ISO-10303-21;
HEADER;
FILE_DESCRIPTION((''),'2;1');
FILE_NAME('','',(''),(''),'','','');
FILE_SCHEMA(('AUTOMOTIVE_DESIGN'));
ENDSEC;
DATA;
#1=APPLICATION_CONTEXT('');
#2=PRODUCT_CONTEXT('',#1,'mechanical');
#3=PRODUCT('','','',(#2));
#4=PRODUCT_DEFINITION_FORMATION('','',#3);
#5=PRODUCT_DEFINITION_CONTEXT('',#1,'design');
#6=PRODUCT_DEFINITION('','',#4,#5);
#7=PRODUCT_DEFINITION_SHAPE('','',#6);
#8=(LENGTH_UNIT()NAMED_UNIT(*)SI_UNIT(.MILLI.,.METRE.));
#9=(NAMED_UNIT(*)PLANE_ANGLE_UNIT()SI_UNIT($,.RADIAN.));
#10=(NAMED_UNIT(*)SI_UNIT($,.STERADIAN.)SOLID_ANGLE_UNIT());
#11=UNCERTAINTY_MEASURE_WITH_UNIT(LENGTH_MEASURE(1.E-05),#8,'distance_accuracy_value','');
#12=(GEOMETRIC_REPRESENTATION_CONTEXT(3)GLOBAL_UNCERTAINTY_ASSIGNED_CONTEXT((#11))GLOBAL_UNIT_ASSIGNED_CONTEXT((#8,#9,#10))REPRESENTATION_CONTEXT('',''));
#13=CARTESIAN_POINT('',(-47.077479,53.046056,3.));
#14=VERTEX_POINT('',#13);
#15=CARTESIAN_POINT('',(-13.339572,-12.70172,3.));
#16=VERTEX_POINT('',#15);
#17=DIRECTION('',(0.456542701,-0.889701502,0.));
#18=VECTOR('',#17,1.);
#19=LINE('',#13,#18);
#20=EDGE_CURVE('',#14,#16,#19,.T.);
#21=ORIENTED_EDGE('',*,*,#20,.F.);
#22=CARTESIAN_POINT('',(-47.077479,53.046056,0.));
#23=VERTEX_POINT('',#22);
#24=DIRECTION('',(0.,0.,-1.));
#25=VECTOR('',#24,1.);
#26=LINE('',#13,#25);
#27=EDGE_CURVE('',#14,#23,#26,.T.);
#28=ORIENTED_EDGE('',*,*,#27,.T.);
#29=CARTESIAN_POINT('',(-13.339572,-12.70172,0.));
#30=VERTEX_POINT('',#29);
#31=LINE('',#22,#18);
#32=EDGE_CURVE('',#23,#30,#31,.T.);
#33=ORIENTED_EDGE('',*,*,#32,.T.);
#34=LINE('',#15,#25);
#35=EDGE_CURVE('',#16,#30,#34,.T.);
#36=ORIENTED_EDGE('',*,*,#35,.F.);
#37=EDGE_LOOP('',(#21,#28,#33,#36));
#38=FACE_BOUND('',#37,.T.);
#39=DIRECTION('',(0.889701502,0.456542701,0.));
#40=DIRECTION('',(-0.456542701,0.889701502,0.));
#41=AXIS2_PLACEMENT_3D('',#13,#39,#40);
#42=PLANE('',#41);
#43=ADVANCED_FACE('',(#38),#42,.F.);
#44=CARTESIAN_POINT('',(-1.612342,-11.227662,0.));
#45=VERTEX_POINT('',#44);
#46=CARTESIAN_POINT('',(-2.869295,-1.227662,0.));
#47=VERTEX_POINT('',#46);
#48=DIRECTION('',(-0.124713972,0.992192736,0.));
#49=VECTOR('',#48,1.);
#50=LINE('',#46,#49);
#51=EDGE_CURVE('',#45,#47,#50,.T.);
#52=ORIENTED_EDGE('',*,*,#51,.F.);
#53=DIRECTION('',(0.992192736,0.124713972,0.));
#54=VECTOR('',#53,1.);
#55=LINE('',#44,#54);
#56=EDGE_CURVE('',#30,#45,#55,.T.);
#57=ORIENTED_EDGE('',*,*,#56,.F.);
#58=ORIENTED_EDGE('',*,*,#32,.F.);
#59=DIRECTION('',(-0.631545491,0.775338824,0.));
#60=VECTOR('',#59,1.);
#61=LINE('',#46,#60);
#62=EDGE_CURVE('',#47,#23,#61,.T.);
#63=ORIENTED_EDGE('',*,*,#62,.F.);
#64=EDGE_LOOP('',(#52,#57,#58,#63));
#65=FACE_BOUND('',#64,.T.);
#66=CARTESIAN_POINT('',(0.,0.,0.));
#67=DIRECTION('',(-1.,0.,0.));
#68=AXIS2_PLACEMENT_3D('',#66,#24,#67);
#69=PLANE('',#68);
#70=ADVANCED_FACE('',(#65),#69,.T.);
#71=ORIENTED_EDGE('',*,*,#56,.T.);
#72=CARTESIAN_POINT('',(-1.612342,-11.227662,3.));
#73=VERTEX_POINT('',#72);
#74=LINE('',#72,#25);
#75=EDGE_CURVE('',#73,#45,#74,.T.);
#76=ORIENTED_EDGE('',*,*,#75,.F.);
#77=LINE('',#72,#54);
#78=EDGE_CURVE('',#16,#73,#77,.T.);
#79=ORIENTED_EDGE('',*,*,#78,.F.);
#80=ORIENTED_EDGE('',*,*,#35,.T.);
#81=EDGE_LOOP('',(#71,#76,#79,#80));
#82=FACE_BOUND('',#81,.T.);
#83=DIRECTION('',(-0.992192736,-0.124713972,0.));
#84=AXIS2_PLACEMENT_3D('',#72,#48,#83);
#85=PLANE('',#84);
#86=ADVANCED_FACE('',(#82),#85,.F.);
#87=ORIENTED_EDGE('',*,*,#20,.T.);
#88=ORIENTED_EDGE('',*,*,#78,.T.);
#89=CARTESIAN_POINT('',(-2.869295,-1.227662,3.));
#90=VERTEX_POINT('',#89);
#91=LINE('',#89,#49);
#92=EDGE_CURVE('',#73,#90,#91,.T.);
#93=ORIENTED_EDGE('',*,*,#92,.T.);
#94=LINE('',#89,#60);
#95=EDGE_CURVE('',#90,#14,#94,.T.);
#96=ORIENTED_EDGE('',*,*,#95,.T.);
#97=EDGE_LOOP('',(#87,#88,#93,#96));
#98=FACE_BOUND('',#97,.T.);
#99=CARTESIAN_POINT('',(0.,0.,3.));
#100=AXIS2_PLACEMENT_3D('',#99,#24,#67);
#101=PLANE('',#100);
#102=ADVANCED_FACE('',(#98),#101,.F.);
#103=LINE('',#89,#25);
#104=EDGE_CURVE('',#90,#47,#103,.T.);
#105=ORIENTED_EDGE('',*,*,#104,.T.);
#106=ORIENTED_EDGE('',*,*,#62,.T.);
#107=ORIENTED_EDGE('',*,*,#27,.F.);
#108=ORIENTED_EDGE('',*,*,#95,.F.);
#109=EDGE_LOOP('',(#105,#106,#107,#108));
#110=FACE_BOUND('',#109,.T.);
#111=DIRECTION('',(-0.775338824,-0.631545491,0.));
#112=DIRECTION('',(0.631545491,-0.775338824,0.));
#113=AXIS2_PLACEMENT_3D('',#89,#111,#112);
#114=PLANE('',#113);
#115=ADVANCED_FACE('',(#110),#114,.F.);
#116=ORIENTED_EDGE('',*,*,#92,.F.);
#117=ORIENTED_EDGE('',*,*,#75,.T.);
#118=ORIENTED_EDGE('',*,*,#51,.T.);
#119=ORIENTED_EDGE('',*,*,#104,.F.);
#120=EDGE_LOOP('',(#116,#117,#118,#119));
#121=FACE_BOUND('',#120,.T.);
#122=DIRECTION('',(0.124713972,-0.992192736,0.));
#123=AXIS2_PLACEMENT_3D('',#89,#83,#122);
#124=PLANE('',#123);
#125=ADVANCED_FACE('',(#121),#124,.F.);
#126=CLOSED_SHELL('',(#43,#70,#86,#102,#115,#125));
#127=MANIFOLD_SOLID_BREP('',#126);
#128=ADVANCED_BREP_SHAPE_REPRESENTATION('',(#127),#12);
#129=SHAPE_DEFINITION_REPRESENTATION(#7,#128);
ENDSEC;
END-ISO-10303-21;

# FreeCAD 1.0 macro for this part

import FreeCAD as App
import Part
import Sketcher
from FreeCAD import Vector

doc = App.newDocument("Part")
body = doc.addObject("PartDesign::Body", "Body")

sketch1 = body.newObject("Sketcher::SketchObject", "Sketch")
sketch1.AttachmentSupport = (doc.getObject("XY_Plane"), [""])
sketch1.MapMode = "FlatFace"
sketch1.addGeometry([
    Part.LineSegment(Vector(-2.869295, -1.227662, 0), Vector(-47.077479, 53.046056, 0)),
    Part.LineSegment(Vector(-47.077479, 53.046056, 0), Vector(-13.339572, -12.70172, 0)),
    Part.LineSegment(Vector(-13.339572, -12.70172, 0), Vector(-1.612342, -11.227662, 0)),
    Part.LineSegment(Vector(-1.612342, -11.227662, 0), Vector(-2.869295, -1.227662, 0)),
], False)
sketch1.addConstraint([
    Sketcher.Constraint("Coincident", 0, 2, 1, 1),
    Sketcher.Constraint("Coincident", 1, 2, 2, 1),
    Sketcher.Constraint("Coincident", 2, 2, 3, 1),
    Sketcher.Constraint("Coincident", 3, 2, 0, 1),
    Sketcher.Constraint("Perpendicular", 2, 3),
    Sketcher.Constraint("Distance", 0, 70.0),
    Sketcher.Constraint("DistanceY", 2, 2, 3, 2, 10.0),
    Sketcher.Constraint("Distance", 1, 73.89869),
    Sketcher.Constraint("DistanceX", 0, 2, -1, 1, 47.077479),
    Sketcher.Constraint("DistanceX", 1, 2, -1, 1, 13.339572),
    Sketcher.Constraint("DistanceY", 1, 2, -1, 1, 12.70172),
    Sketcher.Constraint("DistanceX", 2, 2, -1, 1, 1.612342),
])
pad1 = body.newObject("PartDesign::Pad", "Pad")
pad1.Profile = sketch1
pad1.Length = 3

doc.recompute()
